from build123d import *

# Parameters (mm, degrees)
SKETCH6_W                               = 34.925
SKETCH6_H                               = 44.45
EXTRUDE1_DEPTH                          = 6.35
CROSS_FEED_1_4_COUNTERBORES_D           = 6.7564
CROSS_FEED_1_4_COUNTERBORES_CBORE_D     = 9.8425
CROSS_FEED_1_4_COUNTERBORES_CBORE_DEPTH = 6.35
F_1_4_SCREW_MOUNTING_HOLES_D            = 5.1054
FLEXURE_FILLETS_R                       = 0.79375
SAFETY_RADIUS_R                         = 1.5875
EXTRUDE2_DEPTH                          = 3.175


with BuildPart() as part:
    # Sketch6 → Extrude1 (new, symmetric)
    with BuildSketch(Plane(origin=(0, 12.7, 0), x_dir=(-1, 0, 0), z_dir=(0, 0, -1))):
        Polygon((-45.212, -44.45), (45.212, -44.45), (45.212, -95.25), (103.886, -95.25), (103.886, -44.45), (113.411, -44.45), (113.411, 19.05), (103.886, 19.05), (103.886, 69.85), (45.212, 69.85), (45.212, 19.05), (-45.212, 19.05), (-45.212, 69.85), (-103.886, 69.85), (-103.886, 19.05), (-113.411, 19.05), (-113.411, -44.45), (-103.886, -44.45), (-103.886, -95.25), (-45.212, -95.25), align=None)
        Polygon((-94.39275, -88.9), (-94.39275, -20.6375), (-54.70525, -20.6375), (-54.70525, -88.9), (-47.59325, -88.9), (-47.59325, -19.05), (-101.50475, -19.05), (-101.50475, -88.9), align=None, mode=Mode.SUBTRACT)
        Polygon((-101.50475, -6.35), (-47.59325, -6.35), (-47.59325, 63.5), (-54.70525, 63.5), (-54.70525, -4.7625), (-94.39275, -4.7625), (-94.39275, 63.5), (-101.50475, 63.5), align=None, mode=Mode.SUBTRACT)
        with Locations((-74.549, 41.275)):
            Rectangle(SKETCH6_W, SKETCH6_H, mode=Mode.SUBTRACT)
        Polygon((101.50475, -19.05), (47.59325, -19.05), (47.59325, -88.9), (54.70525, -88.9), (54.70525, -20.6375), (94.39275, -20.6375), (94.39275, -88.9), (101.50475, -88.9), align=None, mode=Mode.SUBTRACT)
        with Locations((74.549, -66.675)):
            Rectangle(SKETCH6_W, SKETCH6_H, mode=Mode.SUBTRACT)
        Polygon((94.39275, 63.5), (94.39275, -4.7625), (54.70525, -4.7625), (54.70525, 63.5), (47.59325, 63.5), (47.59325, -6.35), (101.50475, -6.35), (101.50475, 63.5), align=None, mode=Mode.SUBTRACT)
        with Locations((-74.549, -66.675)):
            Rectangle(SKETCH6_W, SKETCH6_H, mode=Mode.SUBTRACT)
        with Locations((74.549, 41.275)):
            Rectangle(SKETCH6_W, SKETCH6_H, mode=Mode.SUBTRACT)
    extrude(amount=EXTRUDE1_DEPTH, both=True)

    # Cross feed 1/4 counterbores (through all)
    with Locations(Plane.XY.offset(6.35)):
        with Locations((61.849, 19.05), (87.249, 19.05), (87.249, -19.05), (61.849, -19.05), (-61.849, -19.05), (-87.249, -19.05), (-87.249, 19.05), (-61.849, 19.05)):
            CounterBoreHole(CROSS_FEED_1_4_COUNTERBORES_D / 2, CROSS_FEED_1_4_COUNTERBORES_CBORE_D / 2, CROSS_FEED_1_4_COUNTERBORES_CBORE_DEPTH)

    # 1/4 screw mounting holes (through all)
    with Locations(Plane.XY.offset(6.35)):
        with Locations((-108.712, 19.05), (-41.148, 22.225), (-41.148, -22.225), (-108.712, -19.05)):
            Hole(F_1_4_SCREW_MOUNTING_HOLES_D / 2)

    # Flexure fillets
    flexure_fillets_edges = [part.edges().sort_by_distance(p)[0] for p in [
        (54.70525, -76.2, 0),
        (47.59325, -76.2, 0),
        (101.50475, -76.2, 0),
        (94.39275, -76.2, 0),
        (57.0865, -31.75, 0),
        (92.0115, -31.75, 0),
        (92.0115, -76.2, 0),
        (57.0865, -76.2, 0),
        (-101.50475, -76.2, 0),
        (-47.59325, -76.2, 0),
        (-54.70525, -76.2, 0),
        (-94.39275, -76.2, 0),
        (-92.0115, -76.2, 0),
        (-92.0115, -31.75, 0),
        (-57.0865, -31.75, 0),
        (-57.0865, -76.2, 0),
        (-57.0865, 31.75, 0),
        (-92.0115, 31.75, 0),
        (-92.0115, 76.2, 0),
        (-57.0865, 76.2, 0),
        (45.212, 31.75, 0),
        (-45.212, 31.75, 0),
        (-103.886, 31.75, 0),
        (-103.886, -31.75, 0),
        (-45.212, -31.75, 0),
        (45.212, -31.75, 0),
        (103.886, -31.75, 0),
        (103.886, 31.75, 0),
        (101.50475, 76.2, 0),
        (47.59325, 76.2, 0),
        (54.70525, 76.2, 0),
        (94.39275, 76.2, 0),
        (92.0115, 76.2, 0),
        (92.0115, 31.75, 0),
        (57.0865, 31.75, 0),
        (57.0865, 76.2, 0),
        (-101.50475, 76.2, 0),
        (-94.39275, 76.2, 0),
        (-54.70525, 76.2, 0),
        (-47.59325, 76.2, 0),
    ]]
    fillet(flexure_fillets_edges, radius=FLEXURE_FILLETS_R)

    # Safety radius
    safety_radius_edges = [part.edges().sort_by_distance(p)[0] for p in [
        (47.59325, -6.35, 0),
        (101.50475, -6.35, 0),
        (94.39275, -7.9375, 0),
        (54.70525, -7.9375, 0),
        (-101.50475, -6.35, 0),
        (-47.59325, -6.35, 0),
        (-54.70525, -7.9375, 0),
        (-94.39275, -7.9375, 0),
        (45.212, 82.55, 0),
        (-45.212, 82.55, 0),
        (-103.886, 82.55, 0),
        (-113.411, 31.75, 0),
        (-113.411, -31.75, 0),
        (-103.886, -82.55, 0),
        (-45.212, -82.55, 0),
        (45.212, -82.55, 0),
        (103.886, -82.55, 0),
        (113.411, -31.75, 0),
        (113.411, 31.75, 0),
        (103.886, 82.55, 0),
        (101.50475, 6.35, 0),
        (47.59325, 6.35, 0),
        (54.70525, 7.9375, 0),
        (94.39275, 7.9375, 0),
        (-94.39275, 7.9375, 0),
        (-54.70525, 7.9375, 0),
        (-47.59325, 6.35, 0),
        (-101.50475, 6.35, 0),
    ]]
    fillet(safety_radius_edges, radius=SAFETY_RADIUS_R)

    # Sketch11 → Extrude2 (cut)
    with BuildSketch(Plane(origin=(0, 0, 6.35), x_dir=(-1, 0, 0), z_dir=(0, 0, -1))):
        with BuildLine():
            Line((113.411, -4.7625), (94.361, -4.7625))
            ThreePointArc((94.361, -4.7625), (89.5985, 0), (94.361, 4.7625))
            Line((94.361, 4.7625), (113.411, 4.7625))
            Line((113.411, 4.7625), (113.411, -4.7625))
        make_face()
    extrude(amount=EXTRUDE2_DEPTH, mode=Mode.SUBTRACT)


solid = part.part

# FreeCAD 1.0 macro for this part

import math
import FreeCAD as App
import Part
import Sketcher
from FreeCAD import Vector
Q = App.Units.Quantity


def edges_at(feature, points):
    """Names of the edges that pass closest to the given points."""
    edges = feature.Shape.Edges
    near = lambda p: min(range(len(edges)), key=lambda i: edges[i].distToShape(Part.Vertex(*p))[0])
    return sorted({f"Edge{near(p) + 1}" for p in points})

doc = App.newDocument("Part")
body = doc.addObject("PartDesign::Body", "Body")

# Sketch on XY plane
sketch1 = doc.addObject("Sketcher::SketchObject", "Sketch")
body.addObject(sketch1)
sketch1.AttachmentSupport = (doc.XY_Plane, [""])
sketch1.MapMode = "FlatFace"
sketch1.addGeometry([
    Part.LineSegment(Vector(45, -32, 0), Vector(-45, -32, 0)),  # 0
    Part.LineSegment(Vector(-45, -32, 0), Vector(-45, -83, 0)),  # 1
    Part.LineSegment(Vector(-45, -83, 0), Vector(-104, -83, 0)),  # 2
    Part.LineSegment(Vector(-104, -83, 0), Vector(-104, -32, 0)),  # 3
    Part.LineSegment(Vector(-104, -32, 0), Vector(-113, -32, 0)),  # 4
    Part.LineSegment(Vector(-113, -32, 0), Vector(-113, 32, 0)),  # 5
    Part.LineSegment(Vector(-113, 32, 0), Vector(-104, 32, 0)),  # 6
    Part.LineSegment(Vector(-104, 32, 0), Vector(-104, 83, 0)),  # 7
    Part.LineSegment(Vector(-104, 83, 0), Vector(-45, 83, 0)),  # 8
    Part.LineSegment(Vector(-45, 83, 0), Vector(-45, 32, 0)),  # 9
    Part.LineSegment(Vector(-45, 32, 0), Vector(45, 32, 0)),  # 10
    Part.LineSegment(Vector(45, 32, 0), Vector(45, 83, 0)),  # 11
    Part.LineSegment(Vector(45, 83, 0), Vector(104, 83, 0)),  # 12
    Part.LineSegment(Vector(104, 83, 0), Vector(104, 32, 0)),  # 13
    Part.LineSegment(Vector(104, 32, 0), Vector(113, 32, 0)),  # 14
    Part.LineSegment(Vector(113, 32, 0), Vector(113, -32, 0)),  # 15
    Part.LineSegment(Vector(113, -32, 0), Vector(104, -32, 0)),  # 16
    Part.LineSegment(Vector(104, -32, 0), Vector(104, -83, 0)),  # 17
    Part.LineSegment(Vector(104, -83, 0), Vector(45, -83, 0)),  # 18
    Part.LineSegment(Vector(45, -83, 0), Vector(45, -32, 0)),  # 19
    Part.LineSegment(Vector(57, -76, 0), Vector(92, -76, 0)),  # 20
    Part.LineSegment(Vector(92, -76, 0), Vector(92, -32, 0)),  # 21
    Part.LineSegment(Vector(92, -32, 0), Vector(57, -32, 0)),  # 22
    Part.LineSegment(Vector(57, -32, 0), Vector(57, -76, 0)),  # 23
    Part.LineSegment(Vector(94, -8, 0), Vector(94, -76, 0)),  # 24
    Part.LineSegment(Vector(94, -76, 0), Vector(102, -76, 0)),  # 25
    Part.LineSegment(Vector(102, -76, 0), Vector(102, -6, 0)),  # 26
    Part.LineSegment(Vector(102, -6, 0), Vector(48, -6, 0)),  # 27
    Part.LineSegment(Vector(48, -6, 0), Vector(48, -76, 0)),  # 28
    Part.LineSegment(Vector(48, -76, 0), Vector(55, -76, 0)),  # 29
    Part.LineSegment(Vector(55, -76, 0), Vector(55, -8, 0)),  # 30
    Part.LineSegment(Vector(55, -8, 0), Vector(94, -8, 0)),  # 31
    Part.LineSegment(Vector(-92, -76, 0), Vector(-57, -76, 0)),  # 32
    Part.LineSegment(Vector(-57, -76, 0), Vector(-57, -32, 0)),  # 33
    Part.LineSegment(Vector(-57, -32, 0), Vector(-92, -32, 0)),  # 34
    Part.LineSegment(Vector(-92, -32, 0), Vector(-92, -76, 0)),  # 35
    Part.LineSegment(Vector(-48, -6, 0), Vector(-102, -6, 0)),  # 36
    Part.LineSegment(Vector(-102, -6, 0), Vector(-102, -76, 0)),  # 37
    Part.LineSegment(Vector(-102, -76, 0), Vector(-94, -76, 0)),  # 38
    Part.LineSegment(Vector(-94, -76, 0), Vector(-94, -8, 0)),  # 39
    Part.LineSegment(Vector(-94, -8, 0), Vector(-55, -8, 0)),  # 40
    Part.LineSegment(Vector(-55, -8, 0), Vector(-55, -76, 0)),  # 41
    Part.LineSegment(Vector(-55, -76, 0), Vector(-48, -76, 0)),  # 42
    Part.LineSegment(Vector(-48, -76, 0), Vector(-48, -6, 0)),  # 43
    Part.LineSegment(Vector(48, 6, 0), Vector(102, 6, 0)),  # 44
    Part.LineSegment(Vector(102, 6, 0), Vector(102, 76, 0)),  # 45
    Part.LineSegment(Vector(102, 76, 0), Vector(94, 76, 0)),  # 46
    Part.LineSegment(Vector(94, 76, 0), Vector(94, 8, 0)),  # 47
    Part.LineSegment(Vector(94, 8, 0), Vector(55, 8, 0)),  # 48
    Part.LineSegment(Vector(55, 8, 0), Vector(55, 76, 0)),  # 49
    Part.LineSegment(Vector(55, 76, 0), Vector(48, 76, 0)),  # 50
    Part.LineSegment(Vector(48, 76, 0), Vector(48, 6, 0)),  # 51
    Part.LineSegment(Vector(57, 32, 0), Vector(92, 32, 0)),  # 52
    Part.LineSegment(Vector(92, 32, 0), Vector(92, 76, 0)),  # 53
    Part.LineSegment(Vector(92, 76, 0), Vector(57, 76, 0)),  # 54
    Part.LineSegment(Vector(57, 76, 0), Vector(57, 32, 0)),  # 55
    Part.LineSegment(Vector(-94, 8, 0), Vector(-94, 76, 0)),  # 56
    Part.LineSegment(Vector(-94, 76, 0), Vector(-102, 76, 0)),  # 57
    Part.LineSegment(Vector(-102, 76, 0), Vector(-102, 6, 0)),  # 58
    Part.LineSegment(Vector(-102, 6, 0), Vector(-48, 6, 0)),  # 59
    Part.LineSegment(Vector(-48, 6, 0), Vector(-48, 76, 0)),  # 60
    Part.LineSegment(Vector(-48, 76, 0), Vector(-55, 76, 0)),  # 61
    Part.LineSegment(Vector(-55, 76, 0), Vector(-55, 8, 0)),  # 62
    Part.LineSegment(Vector(-55, 8, 0), Vector(-94, 8, 0)),  # 63
    Part.LineSegment(Vector(-92, 32, 0), Vector(-57, 32, 0)),  # 64
    Part.LineSegment(Vector(-57, 32, 0), Vector(-57, 76, 0)),  # 65
    Part.LineSegment(Vector(-57, 76, 0), Vector(-92, 76, 0)),  # 66
    Part.LineSegment(Vector(-92, 76, 0), Vector(-92, 32, 0)),  # 67
], False)
sketch1.addConstraint([
    Sketcher.Constraint("Coincident", 0, 2, 1, 1),
    Sketcher.Constraint("Coincident", 1, 2, 2, 1),
    Sketcher.Constraint("Coincident", 2, 2, 3, 1),
    Sketcher.Constraint("Coincident", 3, 2, 4, 1),
    Sketcher.Constraint("Coincident", 4, 2, 5, 1),
    Sketcher.Constraint("Coincident", 5, 2, 6, 1),
    Sketcher.Constraint("Coincident", 6, 2, 7, 1),
    Sketcher.Constraint("Coincident", 7, 2, 8, 1),
    Sketcher.Constraint("Coincident", 8, 2, 9, 1),
    Sketcher.Constraint("Coincident", 9, 2, 10, 1),
    Sketcher.Constraint("Coincident", 10, 2, 11, 1),
    Sketcher.Constraint("Coincident", 11, 2, 12, 1),
    Sketcher.Constraint("Coincident", 12, 2, 13, 1),
    Sketcher.Constraint("Coincident", 13, 2, 14, 1),
    Sketcher.Constraint("Coincident", 14, 2, 15, 1),
    Sketcher.Constraint("Coincident", 15, 2, 16, 1),
    Sketcher.Constraint("Coincident", 16, 2, 17, 1),
    Sketcher.Constraint("Coincident", 17, 2, 18, 1),
    Sketcher.Constraint("Coincident", 18, 2, 19, 1),
    Sketcher.Constraint("Coincident", 19, 2, 0, 1),
    Sketcher.Constraint("Coincident", 20, 2, 21, 1),
    Sketcher.Constraint("Coincident", 21, 2, 22, 1),
    Sketcher.Constraint("Coincident", 22, 2, 23, 1),
    Sketcher.Constraint("Coincident", 23, 2, 20, 1),
    Sketcher.Constraint("Coincident", 24, 2, 25, 1),
    Sketcher.Constraint("Coincident", 25, 2, 26, 1),
    Sketcher.Constraint("Coincident", 26, 2, 27, 1),
    Sketcher.Constraint("Coincident", 27, 2, 28, 1),
    Sketcher.Constraint("Coincident", 28, 2, 29, 1),
    Sketcher.Constraint("Coincident", 29, 2, 30, 1),
    Sketcher.Constraint("Coincident", 30, 2, 31, 1),
    Sketcher.Constraint("Coincident", 31, 2, 24, 1),
    Sketcher.Constraint("Coincident", 32, 2, 33, 1),
    Sketcher.Constraint("Coincident", 33, 2, 34, 1),
    Sketcher.Constraint("Coincident", 34, 2, 35, 1),
    Sketcher.Constraint("Coincident", 35, 2, 32, 1),
    Sketcher.Constraint("Coincident", 36, 2, 37, 1),
    Sketcher.Constraint("Coincident", 37, 2, 38, 1),
    Sketcher.Constraint("Coincident", 38, 2, 39, 1),
    Sketcher.Constraint("Coincident", 39, 2, 40, 1),
    Sketcher.Constraint("Coincident", 40, 2, 41, 1),
    Sketcher.Constraint("Coincident", 41, 2, 42, 1),
    Sketcher.Constraint("Coincident", 42, 2, 43, 1),
    Sketcher.Constraint("Coincident", 43, 2, 36, 1),
    Sketcher.Constraint("Coincident", 44, 2, 45, 1),
    Sketcher.Constraint("Coincident", 45, 2, 46, 1),
    Sketcher.Constraint("Coincident", 46, 2, 47, 1),
    Sketcher.Constraint("Coincident", 47, 2, 48, 1),
    Sketcher.Constraint("Coincident", 48, 2, 49, 1),
    Sketcher.Constraint("Coincident", 49, 2, 50, 1),
    Sketcher.Constraint("Coincident", 50, 2, 51, 1),
    Sketcher.Constraint("Coincident", 51, 2, 44, 1),
    Sketcher.Constraint("Coincident", 52, 2, 53, 1),
    Sketcher.Constraint("Coincident", 53, 2, 54, 1),
    Sketcher.Constraint("Coincident", 54, 2, 55, 1),
    Sketcher.Constraint("Coincident", 55, 2, 52, 1),
    Sketcher.Constraint("Coincident", 56, 2, 57, 1),
    Sketcher.Constraint("Coincident", 57, 2, 58, 1),
    Sketcher.Constraint("Coincident", 58, 2, 59, 1),
    Sketcher.Constraint("Coincident", 59, 2, 60, 1),
    Sketcher.Constraint("Coincident", 60, 2, 61, 1),
    Sketcher.Constraint("Coincident", 61, 2, 62, 1),
    Sketcher.Constraint("Coincident", 62, 2, 63, 1),
    Sketcher.Constraint("Coincident", 63, 2, 56, 1),
    Sketcher.Constraint("Coincident", 64, 2, 65, 1),
    Sketcher.Constraint("Coincident", 65, 2, 66, 1),
    Sketcher.Constraint("Coincident", 66, 2, 67, 1),
    Sketcher.Constraint("Coincident", 67, 2, 64, 1),
    Sketcher.Constraint("Horizontal", 0),
    Sketcher.Constraint("Vertical", 1),
    Sketcher.Constraint("Horizontal", 2),
    Sketcher.Constraint("Vertical", 3),
    Sketcher.Constraint("Horizontal", 4),
    Sketcher.Constraint("Vertical", 5),
    Sketcher.Constraint("Horizontal", 6),
    Sketcher.Constraint("Vertical", 7),
    Sketcher.Constraint("Horizontal", 8),
    Sketcher.Constraint("Vertical", 9),
    Sketcher.Constraint("Horizontal", 10),
    Sketcher.Constraint("Vertical", 11),
    Sketcher.Constraint("Horizontal", 12),
    Sketcher.Constraint("Vertical", 13),
    Sketcher.Constraint("Horizontal", 14),
    Sketcher.Constraint("Vertical", 15),
    Sketcher.Constraint("Horizontal", 16),
    Sketcher.Constraint("Vertical", 17),
    Sketcher.Constraint("Horizontal", 18),
    Sketcher.Constraint("Vertical", 19),
    Sketcher.Constraint("Horizontal", 20),
    Sketcher.Constraint("Vertical", 21),
    Sketcher.Constraint("Horizontal", 22),
    Sketcher.Constraint("Vertical", 23),
    Sketcher.Constraint("Vertical", 24),
    Sketcher.Constraint("Horizontal", 25),
    Sketcher.Constraint("Vertical", 26),
    Sketcher.Constraint("Horizontal", 27),
    Sketcher.Constraint("Vertical", 28),
    Sketcher.Constraint("Horizontal", 29),
    Sketcher.Constraint("Vertical", 30),
    Sketcher.Constraint("Horizontal", 31),
    Sketcher.Constraint("Horizontal", 32),
    Sketcher.Constraint("Vertical", 33),
    Sketcher.Constraint("Horizontal", 34),
    Sketcher.Constraint("Vertical", 35),
    Sketcher.Constraint("Horizontal", 36),
    Sketcher.Constraint("Vertical", 37),
    Sketcher.Constraint("Horizontal", 38),
    Sketcher.Constraint("Vertical", 39),
    Sketcher.Constraint("Horizontal", 40),
    Sketcher.Constraint("Vertical", 41),
    Sketcher.Constraint("Horizontal", 42),
    Sketcher.Constraint("Vertical", 43),
    Sketcher.Constraint("Horizontal", 44),
    Sketcher.Constraint("Vertical", 45),
    Sketcher.Constraint("Horizontal", 46),
    Sketcher.Constraint("Vertical", 47),
    Sketcher.Constraint("Horizontal", 48),
    Sketcher.Constraint("Vertical", 49),
    Sketcher.Constraint("Horizontal", 50),
    Sketcher.Constraint("Vertical", 51),
    Sketcher.Constraint("Horizontal", 52),
    Sketcher.Constraint("Vertical", 53),
    Sketcher.Constraint("Horizontal", 54),
    Sketcher.Constraint("Vertical", 55),
    Sketcher.Constraint("Vertical", 56),
    Sketcher.Constraint("Horizontal", 57),
    Sketcher.Constraint("Vertical", 58),
    Sketcher.Constraint("Horizontal", 59),
    Sketcher.Constraint("Vertical", 60),
    Sketcher.Constraint("Horizontal", 61),
    Sketcher.Constraint("Vertical", 62),
    Sketcher.Constraint("Horizontal", 63),
    Sketcher.Constraint("Horizontal", 64),
    Sketcher.Constraint("Vertical", 65),
    Sketcher.Constraint("Horizontal", 66),
    Sketcher.Constraint("Vertical", 67),
    Sketcher.Constraint("Symmetric", 0, 2, 10, 2, -1, 1),
    Sketcher.Constraint("Symmetric", 2, 2, 12, 2, -1, 1),
    Sketcher.Constraint("Symmetric", 4, 2, 14, 2, -1, 1),
    Sketcher.Constraint("Symmetric", 6, 2, 16, 2, -1, 1),
    Sketcher.Constraint("Symmetric", 8, 2, 18, 2, -1, 1),
    Sketcher.Constraint("Symmetric", 36, 2, 44, 2, -1, 1),
    Sketcher.Constraint("Symmetric", 38, 2, 46, 2, -1, 1),
    Sketcher.Constraint("Symmetric", 40, 2, 48, 2, -1, 1),
    Sketcher.Constraint("Symmetric", 42, 2, 50, 2, -1, 1),
    Sketcher.Constraint("Symmetric", 34, 2, 52, 2, -1, 1),
    Sketcher.Constraint("Symmetric", 32, 2, 54, 2, -1, 1),
    Sketcher.Constraint("Symmetric", 24, 2, 56, 2, -1, 1),
    Sketcher.Constraint("Symmetric", 26, 2, 58, 2, -1, 1),
    Sketcher.Constraint("Symmetric", 28, 2, 60, 2, -1, 1),
    Sketcher.Constraint("Symmetric", 30, 2, 62, 2, -1, 1),
    Sketcher.Constraint("Symmetric", 22, 2, 64, 2, -1, 1),
    Sketcher.Constraint("Symmetric", 20, 2, 66, 2, -1, 1),
    Sketcher.Constraint("Symmetric", 8, 2, 11, 2, -2),
    Sketcher.Constraint("Symmetric", 6, 2, 13, 2, -2),
    Sketcher.Constraint("Symmetric", 23, 2, 32, 2, -2),
    Sketcher.Constraint("Symmetric", 21, 2, 34, 2, -2),
    Sketcher.Constraint("Symmetric", 26, 2, 36, 2, -2),
    Sketcher.Constraint("Symmetric", 24, 2, 38, 2, -2),
    Sketcher.Constraint("Symmetric", 30, 2, 40, 2, -2),
    Sketcher.Constraint("Symmetric", 28, 2, 42, 2, -2),
    Sketcher.Constraint("Horizontal", 0, 2, 3, 2),
    Sketcher.Constraint("Horizontal", 19, 2, 21, 2),
    Sketcher.Constraint("Horizontal", 23, 2, 24, 2),
    Sketcher.Constraint("Horizontal", 25, 2, 28, 2),
    Sketcher.Constraint("Equal", 25, 29),
    Sketcher.Constraint("DistanceY", 1, 2, 1, 1, Q("2 in")),
    Sketcher.Constraint("DistanceY", 5, 1, 5, 2, Q("2.5 in")),
    Sketcher.Constraint("DistanceY", 20, 2, -1, 1, Q("3 in")),
    Sketcher.Constraint("DistanceX", 0, 2, 0, 1, Q("3.56 in")),
    Sketcher.Constraint("DistanceX", 2, 2, 2, 1, Q("2.31 in")),
    Sketcher.Constraint("DistanceX", 25, 1, 25, 2, Q("0.28 in")),
    Sketcher.Constraint("DistanceY", 26, 1, 26, 2, Q("2.75 in")),
    Sketcher.Constraint("DistanceX", 4, 2, 4, 1, Q("0.375 in")),
    Sketcher.Constraint("DistanceX", 20, 1, 20, 2, Q("1.375 in")),
    Sketcher.Constraint("DistanceX", 31, 1, 31, 2, Q("1.5625 in")),
    Sketcher.Constraint("DistanceY", 24, 2, 24, 1, Q("2.6875 in")),
    Sketcher.Constraint("DistanceX", -1, 1, 20, 2, Q("3.6225 in")),
    Sketcher.Constraint("DistanceX", -1, 1, 24, 2, 94.39275),
])
pad1 = doc.addObject("PartDesign::Pad", "Pad")
body.addObject(pad1)
pad1.Profile = sketch1
pad1.Length = Q("0.5 in")
pad1.Midplane = True

# Sketch on XY plane
sketch2 = doc.addObject("Sketcher::SketchObject", "Sketch001")
body.addObject(sketch2)
sketch2.AttachmentSupport = (doc.XY_Plane, [""])
sketch2.MapMode = "FlatFace"
sketch2.AttachmentOffset = App.Placement(Vector(0, 0, 0.25 * 25.4), App.Rotation())
sketch2.addGeometry([
    Part.Circle(Vector(61.8, 19.1, 0), Vector(0, 0, 1), 3.4),  # 0
    Part.Circle(Vector(87.2, 19.1, 0), Vector(0, 0, 1), 3.4),  # 1
    Part.Circle(Vector(87.2, -19.1, 0), Vector(0, 0, 1), 3.4),  # 2
    Part.Circle(Vector(61.8, -19.1, 0), Vector(0, 0, 1), 3.4),  # 3
    Part.Circle(Vector(-61.8, -19.1, 0), Vector(0, 0, 1), 3.4),  # 4
    Part.Circle(Vector(-87.2, -19.1, 0), Vector(0, 0, 1), 3.4),  # 5
    Part.Circle(Vector(-87.2, 19.1, 0), Vector(0, 0, 1), 3.4),  # 6
    Part.Circle(Vector(-61.8, 19.1, 0), Vector(0, 0, 1), 3.4),  # 7
], False)
sketch2.addConstraint([
    Sketcher.Constraint("Equal", 0, 1),
    Sketcher.Constraint("Equal", 1, 2),
    Sketcher.Constraint("Equal", 2, 3),
    Sketcher.Constraint("Equal", 3, 4),
    Sketcher.Constraint("Equal", 4, 5),
    Sketcher.Constraint("Equal", 5, 6),
    Sketcher.Constraint("Equal", 6, 7),
    Sketcher.Constraint("Symmetric", 0, 3, 4, 3, -1, 1),
    Sketcher.Constraint("Symmetric", 1, 3, 5, 3, -1, 1),
    Sketcher.Constraint("Symmetric", 2, 3, 6, 3, -1, 1),
    Sketcher.Constraint("Symmetric", 3, 3, 7, 3, -1, 1),
    Sketcher.Constraint("Symmetric", 3, 3, 4, 3, -2),
    Sketcher.Constraint("Symmetric", 2, 3, 5, 3, -2),
    Sketcher.Constraint("Horizontal", 0, 3, 1, 3),
    Sketcher.Constraint("Diameter", 0, Q("0.266 in")),
    Sketcher.Constraint("DistanceX", 0, 3, 1, 3, Q("1 in")),
    Sketcher.Constraint("DistanceY", 2, 3, 1, 3, Q("1.5 in")),
    Sketcher.Constraint("DistanceX", 4, 3, 3, 3, Q("4.87 in")),
])
doc.recompute()
hole = doc.addObject("PartDesign::Hole", "Hole")
body.addObject(hole)
hole.Profile = sketch2
hole.ThreadType = "None"
hole.Diameter = Q("0.266 in")
hole.DepthType = "ThroughAll"
hole.HoleCutType = "Counterbore"
hole.HoleCutDiameter = Q("0.3875 in")
hole.HoleCutDepth = Q("0.25 in")

# Sketch on XY plane
sketch3 = doc.addObject("Sketcher::SketchObject", "Sketch002")
body.addObject(sketch3)
sketch3.AttachmentSupport = (doc.XY_Plane, [""])
sketch3.MapMode = "FlatFace"
sketch3.AttachmentOffset = App.Placement(Vector(0, 0, 0.25 * 25.4), App.Rotation())
sketch3.addGeometry([
    Part.Circle(Vector(-108.7, 19.1, 0), Vector(0, 0, 1), 2.6),
    Part.Circle(Vector(-41.1, 22.2, 0), Vector(0, 0, 1), 2.6),
    Part.Circle(Vector(-41.1, -22.2, 0), Vector(0, 0, 1), 2.6),
    Part.Circle(Vector(-108.7, -19.1, 0), Vector(0, 0, 1), 2.6),
], False)
sketch3.addConstraint([
    Sketcher.Constraint("Equal", 0, 1),
    Sketcher.Constraint("Equal", 1, 2),
    Sketcher.Constraint("Equal", 2, 3),
    Sketcher.Constraint("Symmetric", 1, 3, 2, 3, -1),
    Sketcher.Constraint("Symmetric", 0, 3, 3, 3, -1),
    Sketcher.Constraint("Diameter", 0, Q("0.201 in")),
    Sketcher.Constraint("DistanceY", 3, 3, 0, 3, Q("1.5 in")),
    Sketcher.Constraint("DistanceX", 0, 3, -1, 1, Q("4.28 in")),
    Sketcher.Constraint("DistanceX", 1, 3, -1, 1, Q("1.62 in")),
    Sketcher.Constraint("DistanceY", 2, 3, 1, 3, Q("1.75 in")),
])
doc.recompute()
hole2 = doc.addObject("PartDesign::Hole", "Hole001")
body.addObject(hole2)
hole2.Profile = sketch3
hole2.ThreadType = "None"
hole2.Diameter = Q("0.201 in")
hole2.DepthType = "ThroughAll"
doc.recompute()

fillet = doc.addObject("PartDesign::Fillet", "Fillet")
body.addObject(fillet)
fillet.Base = (hole2, edges_at(hole2, [
    (54.705, -76.2, 0),
    (47.593, -76.2, 0),
    (101.505, -76.2, 0),
    (94.393, -76.2, 0),
    (57.087, -31.75, 0),
    (92.011, -31.75, 0),
    (92.011, -76.2, 0),
    (57.087, -76.2, 0),
    (-101.505, -76.2, 0),
    (-47.593, -76.2, 0),
    (-54.705, -76.2, 0),
    (-94.393, -76.2, 0),
    (-92.011, -76.2, 0),
    (-92.011, -31.75, 0),
    (-57.087, -31.75, 0),
    (-57.087, -76.2, 0),
    (-57.087, 31.75, 0),
    (-92.011, 31.75, 0),
    (-92.011, 76.2, 0),
    (-57.087, 76.2, 0),
    (45.212, 31.75, 0),
    (-45.212, 31.75, 0),
    (-103.886, 31.75, 0),
    (-103.886, -31.75, 0),
    (-45.212, -31.75, 0),
    (45.212, -31.75, 0),
    (103.886, -31.75, 0),
    (103.886, 31.75, 0),
    (101.505, 76.2, 0),
    (47.593, 76.2, 0),
    (54.705, 76.2, 0),
    (94.393, 76.2, 0),
    (92.011, 76.2, 0),
    (92.011, 31.75, 0),
    (57.087, 31.75, 0),
    (57.087, 76.2, 0),
    (-101.505, 76.2, 0),
    (-94.393, 76.2, 0),
    (-54.705, 76.2, 0),
    (-47.593, 76.2, 0),
]))
fillet.Radius = Q("0.03125 in")
doc.recompute()

fillet2 = doc.addObject("PartDesign::Fillet", "Fillet001")
body.addObject(fillet2)
fillet2.Base = (fillet, edges_at(fillet, [
    (47.593, -6.35, 0),
    (101.505, -6.35, 0),
    (94.393, -7.938, 0),
    (54.705, -7.938, 0),
    (-101.505, -6.35, 0),
    (-47.593, -6.35, 0),
    (-54.705, -7.938, 0),
    (-94.393, -7.938, 0),
    (45.212, 82.55, 0),
    (-45.212, 82.55, 0),
    (-103.886, 82.55, 0),
    (-113.411, 31.75, 0),
    (-113.411, -31.75, 0),
    (-103.886, -82.55, 0),
    (-45.212, -82.55, 0),
    (45.212, -82.55, 0),
    (103.886, -82.55, 0),
    (113.411, -31.75, 0),
    (113.411, 31.75, 0),
    (103.886, 82.55, 0),
    (101.505, 6.35, 0),
    (47.593, 6.35, 0),
    (54.705, 7.938, 0),
    (94.393, 7.938, 0),
    (-94.393, 7.938, 0),
    (-54.705, 7.938, 0),
    (-47.593, 6.35, 0),
    (-101.505, 6.35, 0),
]))
fillet2.Radius = Q("0.0625 in")

# Sketch on XY plane
sketch4 = doc.addObject("Sketcher::SketchObject", "Sketch003")
body.addObject(sketch4)
sketch4.AttachmentSupport = (doc.XY_Plane, [""])
sketch4.MapMode = "FlatFace"
sketch4.AttachmentOffset = App.Placement(Vector(0, 0, 0.25 * 25.4), App.Rotation())
sketch4.addGeometry([
    Part.LineSegment(Vector(-94.4, -4.8, 0), Vector(-113.4, -4.8, 0)),
    Part.LineSegment(Vector(-113.4, -4.8, 0), Vector(-113.4, 4.8, 0)),
    Part.LineSegment(Vector(-113.4, 4.8, 0), Vector(-94.4, 4.8, 0)),
    Part.ArcOfCircle(Part.Circle(Vector(-94.4, 0, 0), Vector(0, 0, 1), 4.8), math.radians(-90), math.radians(90)),
], False)
sketch4.addConstraint([
    Sketcher.Constraint("Coincident", 0, 2, 1, 1),
    Sketcher.Constraint("Coincident", 1, 2, 2, 1),
    Sketcher.Constraint("Tangent", 2, 2, 3, 2),
    Sketcher.Constraint("Tangent", 3, 1, 0, 1),
    Sketcher.Constraint("Horizontal", 0),
    Sketcher.Constraint("Vertical", 1),
    Sketcher.Constraint("Horizontal", 2),
    Sketcher.Constraint("PointOnObject", 3, 3, -1),
    Sketcher.Constraint("Radius", 3, Q("0.1875 in")),
    Sketcher.Constraint("DistanceX", 0, 2, 0, 1, Q("0.75 in")),
    Sketcher.Constraint("DistanceX", 3, 3, -1, 1, Q("3.715 in")),
])
pocket1 = doc.addObject("PartDesign::Pocket", "Pocket")
body.addObject(pocket1)
pocket1.Profile = sketch4
pocket1.Length = Q("0.125 in")

doc.recompute()
